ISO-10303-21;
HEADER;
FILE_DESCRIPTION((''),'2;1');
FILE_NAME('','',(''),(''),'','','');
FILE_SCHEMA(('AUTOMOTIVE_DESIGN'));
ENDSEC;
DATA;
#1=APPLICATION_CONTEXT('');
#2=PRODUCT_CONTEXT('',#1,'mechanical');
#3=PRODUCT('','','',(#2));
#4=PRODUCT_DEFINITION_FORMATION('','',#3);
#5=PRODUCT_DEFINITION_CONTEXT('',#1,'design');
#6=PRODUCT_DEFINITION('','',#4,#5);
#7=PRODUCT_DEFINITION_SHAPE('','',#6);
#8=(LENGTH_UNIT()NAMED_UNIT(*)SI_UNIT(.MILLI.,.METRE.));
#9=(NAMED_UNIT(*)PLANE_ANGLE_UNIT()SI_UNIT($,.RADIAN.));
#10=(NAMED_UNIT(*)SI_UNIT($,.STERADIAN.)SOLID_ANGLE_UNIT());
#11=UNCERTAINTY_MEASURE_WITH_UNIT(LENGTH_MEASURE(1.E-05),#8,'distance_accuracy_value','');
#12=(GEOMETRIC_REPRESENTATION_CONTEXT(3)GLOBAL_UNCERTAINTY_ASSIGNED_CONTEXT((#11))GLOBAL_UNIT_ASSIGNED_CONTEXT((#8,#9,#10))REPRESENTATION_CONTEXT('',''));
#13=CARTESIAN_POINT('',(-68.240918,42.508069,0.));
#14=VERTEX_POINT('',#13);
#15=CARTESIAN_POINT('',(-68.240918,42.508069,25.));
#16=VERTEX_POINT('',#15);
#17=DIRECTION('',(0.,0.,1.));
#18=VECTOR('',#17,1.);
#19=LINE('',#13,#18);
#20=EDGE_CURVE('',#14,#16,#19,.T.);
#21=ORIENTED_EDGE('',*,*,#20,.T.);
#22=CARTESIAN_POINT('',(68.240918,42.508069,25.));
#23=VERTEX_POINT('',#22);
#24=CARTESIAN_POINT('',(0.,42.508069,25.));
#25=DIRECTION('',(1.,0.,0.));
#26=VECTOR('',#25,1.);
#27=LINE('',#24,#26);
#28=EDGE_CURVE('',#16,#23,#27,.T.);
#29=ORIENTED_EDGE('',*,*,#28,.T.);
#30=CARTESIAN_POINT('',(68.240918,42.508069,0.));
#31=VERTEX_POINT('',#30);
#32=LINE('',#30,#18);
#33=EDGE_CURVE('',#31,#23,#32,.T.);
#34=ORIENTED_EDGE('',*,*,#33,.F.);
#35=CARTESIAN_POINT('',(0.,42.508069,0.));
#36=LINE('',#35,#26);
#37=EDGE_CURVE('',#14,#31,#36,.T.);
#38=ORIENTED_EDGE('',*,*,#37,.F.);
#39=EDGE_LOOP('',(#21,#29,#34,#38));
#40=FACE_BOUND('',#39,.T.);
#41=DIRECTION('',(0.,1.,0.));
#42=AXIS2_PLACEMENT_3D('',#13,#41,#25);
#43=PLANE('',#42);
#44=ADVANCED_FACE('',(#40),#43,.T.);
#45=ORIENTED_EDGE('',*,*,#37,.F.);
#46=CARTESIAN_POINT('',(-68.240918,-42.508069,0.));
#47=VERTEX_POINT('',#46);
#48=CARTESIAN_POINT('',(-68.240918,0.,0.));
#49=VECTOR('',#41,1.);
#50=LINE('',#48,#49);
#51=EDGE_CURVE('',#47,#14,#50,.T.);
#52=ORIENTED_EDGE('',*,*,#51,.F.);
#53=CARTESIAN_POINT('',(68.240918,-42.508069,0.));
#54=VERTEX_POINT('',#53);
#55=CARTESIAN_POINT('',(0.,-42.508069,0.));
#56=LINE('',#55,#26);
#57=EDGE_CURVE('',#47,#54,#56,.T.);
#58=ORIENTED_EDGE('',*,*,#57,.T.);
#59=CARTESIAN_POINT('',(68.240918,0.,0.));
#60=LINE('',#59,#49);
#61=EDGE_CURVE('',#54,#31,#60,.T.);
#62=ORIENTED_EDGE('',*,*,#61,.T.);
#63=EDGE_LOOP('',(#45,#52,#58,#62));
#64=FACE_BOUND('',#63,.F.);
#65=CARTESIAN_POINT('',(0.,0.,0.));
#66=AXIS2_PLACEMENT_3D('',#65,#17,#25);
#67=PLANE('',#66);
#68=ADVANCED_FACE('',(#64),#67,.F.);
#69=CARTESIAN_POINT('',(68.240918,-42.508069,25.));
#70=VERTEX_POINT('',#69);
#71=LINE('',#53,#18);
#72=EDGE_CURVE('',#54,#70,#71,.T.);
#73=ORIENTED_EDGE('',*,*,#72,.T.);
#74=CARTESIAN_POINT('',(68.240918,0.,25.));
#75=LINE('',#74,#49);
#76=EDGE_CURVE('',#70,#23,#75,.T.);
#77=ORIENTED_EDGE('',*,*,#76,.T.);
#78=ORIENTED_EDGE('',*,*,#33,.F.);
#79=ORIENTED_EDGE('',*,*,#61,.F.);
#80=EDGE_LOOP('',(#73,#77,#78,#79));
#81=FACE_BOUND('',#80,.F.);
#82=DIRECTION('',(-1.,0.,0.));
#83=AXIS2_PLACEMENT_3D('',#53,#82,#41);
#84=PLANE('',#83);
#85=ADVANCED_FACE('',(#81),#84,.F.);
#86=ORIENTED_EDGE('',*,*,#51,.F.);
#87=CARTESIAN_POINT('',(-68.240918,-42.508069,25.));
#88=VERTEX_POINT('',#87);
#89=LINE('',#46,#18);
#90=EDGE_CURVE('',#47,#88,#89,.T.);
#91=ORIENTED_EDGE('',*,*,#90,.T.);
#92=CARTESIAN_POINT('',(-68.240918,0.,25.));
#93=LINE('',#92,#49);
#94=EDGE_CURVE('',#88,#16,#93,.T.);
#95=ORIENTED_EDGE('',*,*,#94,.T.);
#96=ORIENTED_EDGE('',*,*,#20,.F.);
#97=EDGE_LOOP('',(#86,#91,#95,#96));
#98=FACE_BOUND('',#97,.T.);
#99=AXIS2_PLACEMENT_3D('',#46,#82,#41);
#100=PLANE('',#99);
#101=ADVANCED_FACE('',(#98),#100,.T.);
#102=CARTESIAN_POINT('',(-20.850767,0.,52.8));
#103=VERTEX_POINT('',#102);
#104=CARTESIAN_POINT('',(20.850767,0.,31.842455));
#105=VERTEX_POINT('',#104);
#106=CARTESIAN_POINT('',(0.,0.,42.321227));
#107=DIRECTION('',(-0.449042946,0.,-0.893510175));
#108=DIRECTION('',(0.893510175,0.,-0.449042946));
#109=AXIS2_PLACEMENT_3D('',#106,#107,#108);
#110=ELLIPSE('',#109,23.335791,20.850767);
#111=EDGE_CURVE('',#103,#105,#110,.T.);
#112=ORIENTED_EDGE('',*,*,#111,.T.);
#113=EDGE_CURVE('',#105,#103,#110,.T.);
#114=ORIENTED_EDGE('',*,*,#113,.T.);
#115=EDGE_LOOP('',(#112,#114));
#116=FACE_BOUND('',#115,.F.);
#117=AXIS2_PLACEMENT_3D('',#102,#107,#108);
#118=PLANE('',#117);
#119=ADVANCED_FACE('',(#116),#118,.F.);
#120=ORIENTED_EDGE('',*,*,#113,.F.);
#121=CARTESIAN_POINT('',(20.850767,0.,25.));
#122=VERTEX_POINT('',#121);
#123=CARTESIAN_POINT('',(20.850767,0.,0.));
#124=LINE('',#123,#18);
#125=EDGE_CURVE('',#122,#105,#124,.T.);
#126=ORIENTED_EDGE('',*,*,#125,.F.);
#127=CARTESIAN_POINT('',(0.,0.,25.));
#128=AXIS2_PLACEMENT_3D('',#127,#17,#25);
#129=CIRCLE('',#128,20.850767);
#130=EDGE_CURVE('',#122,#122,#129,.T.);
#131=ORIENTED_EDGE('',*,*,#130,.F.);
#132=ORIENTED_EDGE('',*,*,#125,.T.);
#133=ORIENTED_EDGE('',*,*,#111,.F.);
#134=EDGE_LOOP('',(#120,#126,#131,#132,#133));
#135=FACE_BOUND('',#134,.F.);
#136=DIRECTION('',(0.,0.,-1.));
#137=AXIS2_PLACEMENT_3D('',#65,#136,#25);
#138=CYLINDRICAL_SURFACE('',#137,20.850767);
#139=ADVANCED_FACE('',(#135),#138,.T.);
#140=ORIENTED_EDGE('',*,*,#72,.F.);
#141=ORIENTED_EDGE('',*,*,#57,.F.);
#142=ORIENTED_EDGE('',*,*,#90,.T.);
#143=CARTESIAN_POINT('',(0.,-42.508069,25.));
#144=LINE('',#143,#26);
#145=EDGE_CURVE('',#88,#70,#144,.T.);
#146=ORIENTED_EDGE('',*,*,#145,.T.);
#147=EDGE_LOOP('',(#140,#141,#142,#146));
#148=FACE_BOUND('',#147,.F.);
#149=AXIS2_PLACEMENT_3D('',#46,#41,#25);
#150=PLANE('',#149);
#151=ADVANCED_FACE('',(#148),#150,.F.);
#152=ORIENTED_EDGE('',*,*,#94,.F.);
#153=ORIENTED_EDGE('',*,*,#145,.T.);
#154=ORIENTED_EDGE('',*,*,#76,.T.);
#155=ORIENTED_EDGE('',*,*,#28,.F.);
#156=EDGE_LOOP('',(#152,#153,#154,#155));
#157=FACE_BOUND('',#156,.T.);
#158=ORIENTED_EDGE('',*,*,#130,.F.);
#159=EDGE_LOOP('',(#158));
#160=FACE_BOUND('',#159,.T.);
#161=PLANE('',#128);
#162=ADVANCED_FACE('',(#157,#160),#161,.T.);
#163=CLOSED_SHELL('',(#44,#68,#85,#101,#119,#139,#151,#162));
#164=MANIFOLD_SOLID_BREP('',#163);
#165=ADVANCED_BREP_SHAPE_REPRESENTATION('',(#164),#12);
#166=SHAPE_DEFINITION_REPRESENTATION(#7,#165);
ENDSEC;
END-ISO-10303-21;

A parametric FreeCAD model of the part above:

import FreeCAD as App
import Part
import Sketcher
from FreeCAD import Vector
Q = App.Units.Quantity


def add_polygon(sketch, points):
    """Adds a closed chain of lines whose ends are joined by coincident constraints."""
    first, n = sketch.GeometryCount, len(points)
    for a, b in zip(points, points[1:] + points[:1]):
        sketch.addGeometry(Part.LineSegment(App.Vector(*a, 0), App.Vector(*b, 0)), False)
    for i in range(n):
        sketch.addConstraint(Sketcher.Constraint("Coincident", first + i, 2, first + (i + 1) % n, 1))

doc = App.newDocument("Part")
params = doc.addObject("Spreadsheet::Sheet", "Params")
for row, (alias, value) in enumerate([
    ("pad1_length", "25 mm"),
    ("pad2_length", "52.8 mm"),
    ("pocket1_length", "95.2 mm"),
], start=1):
    params.set(f"A{row}", alias)
    params.set(f"B{row}", "=" + value)
    params.setAlias(f"B{row}", alias)

body = doc.addObject("PartDesign::Body", "Body")

# Sketch on XY plane
sketch1 = body.newObject("Sketcher::SketchObject", "Sketch")
sketch1.AttachmentSupport = (doc.getObject("XY_Plane"), [""])
sketch1.MapMode = "FlatFace"
add_polygon(sketch1, [(-68.240918, 42.508069), (-68.240918, -42.508069), (68.240918, -42.508069), (68.240918, 42.508069)])  # lines 0-3
sketch1.addGeometry(Part.Circle(Vector(0, 0, 0), Vector(0, 0, 1), 20.850767), False)  # 4
sketch1.addConstraint([
    Sketcher.Constraint("Vertical", 0),
    Sketcher.Constraint("Horizontal", 1),
    Sketcher.Constraint("Vertical", 2),
    Sketcher.Constraint("Horizontal", 3),
    Sketcher.Constraint("Coincident", 4, 3, -1, 1),
    Sketcher.Constraint("Symmetric", 0, 2, 2, 2, -1, 1),
    Sketcher.Constraint("Diameter", 4, Q("41.701534 mm")),
    Sketcher.Constraint("DistanceY", 0, 2, 0, 1, Q("85.016138 mm")),
    Sketcher.Constraint("DistanceX", 1, 1, 1, 2, Q("136.481836 mm")),
])
pad1 = body.newObject("PartDesign::Pad", "Pad")
pad1.Profile = sketch1
pad1.setExpression("Length", "Params.pad1_length")

# Sketch on XY plane
sketch2 = body.newObject("Sketcher::SketchObject", "Sketch001")
sketch2.AttachmentSupport = (doc.getObject("XY_Plane"), [""])
sketch2.MapMode = "FlatFace"
sketch2.addGeometry(Part.Circle(Vector(0, 0, 0), Vector(0, 0, 1), 20.850767), False)
sketch2.addConstraint([
    Sketcher.Constraint("Coincident", 0, 3, -1, 1),
    Sketcher.Constraint("Diameter", 0, Q("41.701534 mm")),
])
pad2 = body.newObject("PartDesign::Pad", "Pad001")
pad2.Profile = sketch2
pad2.setExpression("Length", "Params.pad2_length")

# Sketch on XZ plane
sketch3 = body.newObject("Sketcher::SketchObject", "Sketch002")
sketch3.AttachmentSupport = (doc.getObject("XZ_Plane"), [""])
sketch3.MapMode = "FlatFace"
add_polygon(sketch3, [(20.850767, 52.8), (-20.850767, 52.8), (20.850767, 31.842455)])  # lines 0-2
sketch3.addConstraint([
    Sketcher.Constraint("Horizontal", 0),
    Sketcher.Constraint("Vertical", 2),
    Sketcher.Constraint("DistanceY", -1, 1, 0, 2, Q("52.8 mm")),
    Sketcher.Constraint("DistanceX", 0, 2, 0, 1, Q("41.701534 mm")),
    Sketcher.Constraint("DistanceY", 2, 1, 2, 2, Q("20.957545 mm")),
    Sketcher.Constraint("DistanceX", 0, 2, -1, 1, Q("20.850767 mm")),
])
pocket1 = body.newObject("PartDesign::Pocket", "Pocket")
pocket1.Profile = sketch3
pocket1.setExpression("Length", "Params.pocket1_length")
pocket1.Midplane = True

doc.recompute()
